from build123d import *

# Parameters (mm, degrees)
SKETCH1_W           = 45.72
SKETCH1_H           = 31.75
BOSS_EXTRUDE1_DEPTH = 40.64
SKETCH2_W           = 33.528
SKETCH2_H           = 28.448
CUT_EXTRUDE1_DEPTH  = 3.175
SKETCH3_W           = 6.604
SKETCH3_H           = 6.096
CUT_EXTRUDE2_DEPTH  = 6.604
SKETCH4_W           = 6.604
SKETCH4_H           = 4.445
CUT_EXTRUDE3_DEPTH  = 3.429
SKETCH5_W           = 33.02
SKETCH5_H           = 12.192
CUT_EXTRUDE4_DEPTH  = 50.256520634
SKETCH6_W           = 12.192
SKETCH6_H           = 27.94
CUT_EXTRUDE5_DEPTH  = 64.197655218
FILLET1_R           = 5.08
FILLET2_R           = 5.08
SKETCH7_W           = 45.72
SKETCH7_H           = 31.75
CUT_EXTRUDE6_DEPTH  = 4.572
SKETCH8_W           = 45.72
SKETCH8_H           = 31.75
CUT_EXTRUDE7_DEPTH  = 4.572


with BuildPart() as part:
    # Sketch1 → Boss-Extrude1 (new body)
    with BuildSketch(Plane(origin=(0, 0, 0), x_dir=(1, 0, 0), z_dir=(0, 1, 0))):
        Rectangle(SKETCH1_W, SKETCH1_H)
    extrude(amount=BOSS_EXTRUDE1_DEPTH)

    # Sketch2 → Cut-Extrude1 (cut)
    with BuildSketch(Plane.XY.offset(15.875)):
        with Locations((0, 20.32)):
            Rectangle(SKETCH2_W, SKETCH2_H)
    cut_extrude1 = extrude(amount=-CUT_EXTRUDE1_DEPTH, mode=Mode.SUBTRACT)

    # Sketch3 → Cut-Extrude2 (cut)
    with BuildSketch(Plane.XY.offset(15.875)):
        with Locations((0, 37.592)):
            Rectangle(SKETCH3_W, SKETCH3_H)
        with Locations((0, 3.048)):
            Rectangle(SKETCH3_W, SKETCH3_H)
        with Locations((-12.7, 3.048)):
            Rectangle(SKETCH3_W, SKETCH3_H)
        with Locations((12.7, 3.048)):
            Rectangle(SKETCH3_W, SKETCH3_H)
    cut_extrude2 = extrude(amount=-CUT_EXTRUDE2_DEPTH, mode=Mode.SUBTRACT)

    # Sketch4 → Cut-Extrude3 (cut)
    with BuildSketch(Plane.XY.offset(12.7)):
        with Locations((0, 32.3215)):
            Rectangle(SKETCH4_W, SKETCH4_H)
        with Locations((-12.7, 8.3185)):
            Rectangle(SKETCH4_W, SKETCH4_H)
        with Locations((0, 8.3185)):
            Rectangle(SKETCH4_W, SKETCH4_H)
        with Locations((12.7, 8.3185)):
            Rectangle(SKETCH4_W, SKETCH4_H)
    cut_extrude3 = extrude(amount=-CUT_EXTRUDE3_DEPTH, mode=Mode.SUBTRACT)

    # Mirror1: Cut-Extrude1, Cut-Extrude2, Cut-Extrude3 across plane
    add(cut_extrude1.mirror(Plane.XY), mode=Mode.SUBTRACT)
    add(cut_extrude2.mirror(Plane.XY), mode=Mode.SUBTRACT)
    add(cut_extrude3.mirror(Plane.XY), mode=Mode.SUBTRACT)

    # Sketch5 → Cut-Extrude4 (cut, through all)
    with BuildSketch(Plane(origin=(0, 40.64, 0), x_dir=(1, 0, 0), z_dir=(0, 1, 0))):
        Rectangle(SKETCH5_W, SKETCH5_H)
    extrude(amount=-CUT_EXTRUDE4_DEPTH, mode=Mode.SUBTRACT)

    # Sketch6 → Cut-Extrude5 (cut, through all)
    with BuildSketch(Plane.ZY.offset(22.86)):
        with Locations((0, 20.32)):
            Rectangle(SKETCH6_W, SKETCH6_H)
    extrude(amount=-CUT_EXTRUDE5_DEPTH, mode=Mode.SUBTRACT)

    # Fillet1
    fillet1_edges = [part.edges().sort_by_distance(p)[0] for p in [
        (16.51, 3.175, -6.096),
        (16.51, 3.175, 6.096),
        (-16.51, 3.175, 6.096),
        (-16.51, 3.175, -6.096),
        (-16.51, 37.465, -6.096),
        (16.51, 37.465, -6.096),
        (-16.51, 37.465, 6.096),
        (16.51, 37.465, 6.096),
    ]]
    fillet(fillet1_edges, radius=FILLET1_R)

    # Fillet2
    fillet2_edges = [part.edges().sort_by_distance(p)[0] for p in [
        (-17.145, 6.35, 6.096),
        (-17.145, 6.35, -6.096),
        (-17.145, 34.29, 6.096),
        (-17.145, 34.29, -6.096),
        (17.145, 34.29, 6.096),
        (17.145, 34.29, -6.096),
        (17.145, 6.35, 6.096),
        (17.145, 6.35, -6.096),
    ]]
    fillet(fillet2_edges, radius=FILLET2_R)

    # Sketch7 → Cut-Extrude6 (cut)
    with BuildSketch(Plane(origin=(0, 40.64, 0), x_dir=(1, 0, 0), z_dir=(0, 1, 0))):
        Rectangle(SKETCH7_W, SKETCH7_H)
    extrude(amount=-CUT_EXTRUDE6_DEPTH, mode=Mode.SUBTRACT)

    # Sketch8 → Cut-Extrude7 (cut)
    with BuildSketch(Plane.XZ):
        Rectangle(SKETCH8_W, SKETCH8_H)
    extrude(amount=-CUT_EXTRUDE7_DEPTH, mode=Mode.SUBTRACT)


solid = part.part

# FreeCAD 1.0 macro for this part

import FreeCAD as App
import Part
import Sketcher

V = App.Vector
Q = App.Units.Quantity


def edges_at(feature, points):
    """Names of the edges that pass closest to the given points."""
    edges = feature.Shape.Edges
    near = lambda p: min(range(len(edges)), key=lambda i: edges[i].distToShape(Part.Vertex(*p))[0])
    return sorted({f"Edge{near(p) + 1}" for p in points})

doc = App.newDocument("Part")
body = doc.addObject("PartDesign::Body", "Body")

# Sketch on XZ plane
sketch1 = body.newObject("Sketcher::SketchObject", "Sketch")
sketch1.AttachmentSupport = (doc.getObject("XZ_Plane"), [""])
sketch1.MapMode = "FlatFace"
sketch1.addGeometry([
    Part.LineSegment(V(-23, -16, 0), V(-23, 16, 0)),
    Part.LineSegment(V(-23, 16, 0), V(23, 16, 0)),
    Part.LineSegment(V(23, 16, 0), V(23, -16, 0)),
    Part.LineSegment(V(23, -16, 0), V(-23, -16, 0)),
], False)
sketch1.addConstraint([
    Sketcher.Constraint("Coincident", 0, 2, 1, 1),
    Sketcher.Constraint("Coincident", 1, 2, 2, 1),
    Sketcher.Constraint("Coincident", 2, 2, 3, 1),
    Sketcher.Constraint("Coincident", 3, 2, 0, 1),
    Sketcher.Constraint("Vertical", 0),
    Sketcher.Constraint("Horizontal", 1),
    Sketcher.Constraint("Vertical", 2),
    Sketcher.Constraint("Horizontal", 3),
    Sketcher.Constraint("Symmetric", 0, 2, 2, 2, -1, 1),
    Sketcher.Constraint("DistanceX", 1, 1, 1, 2, Q("1.8 in")),
    Sketcher.Constraint("DistanceY", 0, 1, 0, 2, Q("1.25 in")),
])
pad1 = body.newObject("PartDesign::Pad", "Pad")
pad1.Profile = sketch1
pad1.Length = Q("1.6 in")
pad1.Reversed = True

# Sketch on XY plane
sketch2 = body.newObject("Sketcher::SketchObject", "Sketch001")
sketch2.AttachmentSupport = (doc.getObject("XY_Plane"), [""])
sketch2.MapMode = "FlatFace"
sketch2.AttachmentOffset = App.Placement(V(0, 0, 0.625 * 25.4), App.Rotation())
sketch2.addGeometry([
    Part.LineSegment(V(-17, 35, 0), V(-17, 6, 0)),
    Part.LineSegment(V(-17, 6, 0), V(17, 6, 0)),
    Part.LineSegment(V(17, 6, 0), V(17, 35, 0)),
    Part.LineSegment(V(17, 35, 0), V(-17, 35, 0)),
], False)
sketch2.addConstraint([
    Sketcher.Constraint("Coincident", 0, 2, 1, 1),
    Sketcher.Constraint("Coincident", 1, 2, 2, 1),
    Sketcher.Constraint("Coincident", 2, 2, 3, 1),
    Sketcher.Constraint("Coincident", 3, 2, 0, 1),
    Sketcher.Constraint("Vertical", 0),
    Sketcher.Constraint("Horizontal", 1),
    Sketcher.Constraint("Vertical", 2),
    Sketcher.Constraint("Horizontal", 3),
    Sketcher.Constraint("DistanceX", 1, 1, 1, 2, Q("1.32 in")),
    Sketcher.Constraint("DistanceY", 0, 2, 0, 1, Q("1.12 in")),
    Sketcher.Constraint("DistanceX", 0, 2, -1, 1, Q("0.66 in")),
    Sketcher.Constraint("DistanceY", -1, 1, 0, 2, Q("0.24 in")),
])
pocket1 = body.newObject("PartDesign::Pocket", "Pocket")
pocket1.Profile = sketch2
pocket1.Length = Q("0.125 in")

# Sketch on XY plane
sketch3 = body.newObject("Sketcher::SketchObject", "Sketch002")
sketch3.AttachmentSupport = (doc.getObject("XY_Plane"), [""])
sketch3.MapMode = "FlatFace"
sketch3.AttachmentOffset = App.Placement(V(0, 0, 0.625 * 25.4), App.Rotation())
sketch3.addGeometry([
    Part.LineSegment(V(-3, 41, 0), V(-3, 35, 0)),  # 0
    Part.LineSegment(V(-3, 35, 0), V(3, 35, 0)),  # 1
    Part.LineSegment(V(3, 35, 0), V(3, 41, 0)),  # 2
    Part.LineSegment(V(3, 41, 0), V(-3, 41, 0)),  # 3
    Part.LineSegment(V(-3, 6, 0), V(-3, 0, 0)),  # 4
    Part.LineSegment(V(-3, 0, 0), V(3, 0, 0)),  # 5
    Part.LineSegment(V(3, 0, 0), V(3, 6, 0)),  # 6
    Part.LineSegment(V(3, 6, 0), V(-3, 6, 0)),  # 7
    Part.LineSegment(V(-16, 6, 0), V(-16, 0, 0)),  # 8
    Part.LineSegment(V(-16, 0, 0), V(-9, 0, 0)),  # 9
    Part.LineSegment(V(-9, 0, 0), V(-9, 6, 0)),  # 10
    Part.LineSegment(V(-9, 6, 0), V(-16, 6, 0)),  # 11
    Part.LineSegment(V(9, 6, 0), V(9, 0, 0)),  # 12
    Part.LineSegment(V(9, 0, 0), V(16, 0, 0)),  # 13
    Part.LineSegment(V(16, 0, 0), V(16, 6, 0)),  # 14
    Part.LineSegment(V(16, 6, 0), V(9, 6, 0)),  # 15
], False)
sketch3.addConstraint([
    Sketcher.Constraint("Coincident", 0, 2, 1, 1),
    Sketcher.Constraint("Coincident", 1, 2, 2, 1),
    Sketcher.Constraint("Coincident", 2, 2, 3, 1),
    Sketcher.Constraint("Coincident", 3, 2, 0, 1),
    Sketcher.Constraint("Coincident", 4, 2, 5, 1),
    Sketcher.Constraint("Coincident", 5, 2, 6, 1),
    Sketcher.Constraint("Coincident", 6, 2, 7, 1),
    Sketcher.Constraint("Coincident", 7, 2, 4, 1),
    Sketcher.Constraint("Coincident", 8, 2, 9, 1),
    Sketcher.Constraint("Coincident", 9, 2, 10, 1),
    Sketcher.Constraint("Coincident", 10, 2, 11, 1),
    Sketcher.Constraint("Coincident", 11, 2, 8, 1),
    Sketcher.Constraint("Coincident", 12, 2, 13, 1),
    Sketcher.Constraint("Coincident", 13, 2, 14, 1),
    Sketcher.Constraint("Coincident", 14, 2, 15, 1),
    Sketcher.Constraint("Coincident", 15, 2, 12, 1),
    Sketcher.Constraint("Vertical", 0),
    Sketcher.Constraint("Horizontal", 1),
    Sketcher.Constraint("Vertical", 2),
    Sketcher.Constraint("Horizontal", 3),
    Sketcher.Constraint("Vertical", 4),
    Sketcher.Constraint("Horizontal", 5),
    Sketcher.Constraint("Vertical", 6),
    Sketcher.Constraint("Horizontal", 7),
    Sketcher.Constraint("Vertical", 8),
    Sketcher.Constraint("Horizontal", 9),
    Sketcher.Constraint("Vertical", 10),
    Sketcher.Constraint("Horizontal", 11),
    Sketcher.Constraint("Vertical", 12),
    Sketcher.Constraint("Horizontal", 13),
    Sketcher.Constraint("Vertical", 14),
    Sketcher.Constraint("Horizontal", 15),
    Sketcher.Constraint("Symmetric", 4, 2, 5, 2, -1, 1),
    Sketcher.Constraint("Symmetric", 9, 2, 12, 2, -1, 1),
    Sketcher.Constraint("Symmetric", 8, 2, 13, 2, -2),
    Sketcher.Constraint("Horizontal", 7, 2, 10, 2),
    Sketcher.Constraint("Horizontal", 11, 2, 14, 2),
    Sketcher.Constraint("Vertical", 3, 2, 4, 2),
    Sketcher.Constraint("Vertical", 2, 2, 5, 2),
    Sketcher.Constraint("Equal", 7, 9),
    Sketcher.Constraint("Equal", 2, 4),
    Sketcher.Constraint("DistanceX", 1, 1, 1, 2, Q("0.26 in")),
    Sketcher.Constraint("DistanceY", 0, 2, 0, 1, Q("0.24 in")),
    Sketcher.Constraint("DistanceY", -1, 1, 2, 2, Q("1.6 in")),
    Sketcher.Constraint("DistanceX", 8, 2, 4, 2, Q("0.5 in")),
])
pocket2 = body.newObject("PartDesign::Pocket", "Pocket001")
pocket2.Profile = sketch3
pocket2.Length = Q("0.26 in")

# Sketch on XY plane
sketch4 = body.newObject("Sketcher::SketchObject", "Sketch003")
sketch4.AttachmentSupport = (doc.getObject("XY_Plane"), [""])
sketch4.MapMode = "FlatFace"
sketch4.AttachmentOffset = App.Placement(V(0, 0, 0.5 * 25.4), App.Rotation())
sketch4.addGeometry([
    Part.LineSegment(V(-3.3, 34.5, 0), V(-3.3, 30.1, 0)),  # 0
    Part.LineSegment(V(-3.3, 30.1, 0), V(3.3, 30.1, 0)),  # 1
    Part.LineSegment(V(3.3, 30.1, 0), V(3.3, 34.5, 0)),  # 2
    Part.LineSegment(V(3.3, 34.5, 0), V(-3.3, 34.5, 0)),  # 3
    Part.LineSegment(V(-16, 10.5, 0), V(-16, 6.1, 0)),  # 4
    Part.LineSegment(V(-16, 6.1, 0), V(-9.4, 6.1, 0)),  # 5
    Part.LineSegment(V(-9.4, 6.1, 0), V(-9.4, 10.5, 0)),  # 6
    Part.LineSegment(V(-9.4, 10.5, 0), V(-16, 10.5, 0)),  # 7
    Part.LineSegment(V(-3.3, 10.5, 0), V(-3.3, 6.1, 0)),  # 8
    Part.LineSegment(V(-3.3, 6.1, 0), V(3.3, 6.1, 0)),  # 9
    Part.LineSegment(V(3.3, 6.1, 0), V(3.3, 10.5, 0)),  # 10
    Part.LineSegment(V(3.3, 10.5, 0), V(-3.3, 10.5, 0)),  # 11
    Part.LineSegment(V(9.4, 10.5, 0), V(9.4, 6.1, 0)),  # 12
    Part.LineSegment(V(9.4, 6.1, 0), V(16, 6.1, 0)),  # 13
    Part.LineSegment(V(16, 6.1, 0), V(16, 10.5, 0)),  # 14
    Part.LineSegment(V(16, 10.5, 0), V(9.4, 10.5, 0)),  # 15
], False)
sketch4.addConstraint([
    Sketcher.Constraint("Coincident", 0, 2, 1, 1),
    Sketcher.Constraint("Coincident", 1, 2, 2, 1),
    Sketcher.Constraint("Coincident", 2, 2, 3, 1),
    Sketcher.Constraint("Coincident", 3, 2, 0, 1),
    Sketcher.Constraint("Coincident", 4, 2, 5, 1),
    Sketcher.Constraint("Coincident", 5, 2, 6, 1),
    Sketcher.Constraint("Coincident", 6, 2, 7, 1),
    Sketcher.Constraint("Coincident", 7, 2, 4, 1),
    Sketcher.Constraint("Coincident", 8, 2, 9, 1),
    Sketcher.Constraint("Coincident", 9, 2, 10, 1),
    Sketcher.Constraint("Coincident", 10, 2, 11, 1),
    Sketcher.Constraint("Coincident", 11, 2, 8, 1),
    Sketcher.Constraint("Coincident", 12, 2, 13, 1),
    Sketcher.Constraint("Coincident", 13, 2, 14, 1),
    Sketcher.Constraint("Coincident", 14, 2, 15, 1),
    Sketcher.Constraint("Coincident", 15, 2, 12, 1),
    Sketcher.Constraint("Vertical", 0),
    Sketcher.Constraint("Horizontal", 1),
    Sketcher.Constraint("Vertical", 2),
    Sketcher.Constraint("Horizontal", 3),
    Sketcher.Constraint("Vertical", 4),
    Sketcher.Constraint("Horizontal", 5),
    Sketcher.Constraint("Vertical", 6),
    Sketcher.Constraint("Horizontal", 7),
    Sketcher.Constraint("Vertical", 8),
    Sketcher.Constraint("Horizontal", 9),
    Sketcher.Constraint("Vertical", 10),
    Sketcher.Constraint("Horizontal", 11),
    Sketcher.Constraint("Vertical", 12),
    Sketcher.Constraint("Horizontal", 13),
    Sketcher.Constraint("Vertical", 14),
    Sketcher.Constraint("Horizontal", 15),
    Sketcher.Constraint("Symmetric", 5, 2, 12, 2, -2),
    Sketcher.Constraint("Symmetric", 7, 2, 14, 2, -2),
    Sketcher.Constraint("Horizontal", 5, 2, 8, 2),
    Sketcher.Constraint("Horizontal", 7, 2, 10, 2),
    Sketcher.Constraint("Vertical", 3, 2, 8, 2),
    Sketcher.Constraint("Vertical", 2, 2, 9, 2),
    Sketcher.Constraint("Equal", 3, 5),
    Sketcher.Constraint("Equal", 2, 4),
    Sketcher.Constraint("DistanceX", 1, 1, 1, 2, Q("0.26 in")),
    Sketcher.Constraint("DistanceX", 4, 2, 0, 2, Q("0.5 in")),
    Sketcher.Constraint("DistanceX", 8, 2, 12, 2, Q("0.5 in")),
    Sketcher.Constraint("DistanceY", 0, 2, 0, 1, Q("0.175 in")),
    Sketcher.Constraint("DistanceY", -1, 1, 2, 2, Q("1.36 in")),
    Sketcher.Constraint("DistanceY", -1, 1, 4, 2, Q("0.24 in")),
])
pocket3 = body.newObject("PartDesign::Pocket", "Pocket002")
pocket3.Profile = sketch4
pocket3.Length = Q("0.135 in")
doc.recompute()

mirrored = body.newObject("PartDesign::Mirrored", "Mirrored")
mirrored.Originals = [pocket1, pocket2, pocket3]
mirrored.MirrorPlane = (doc.getObject("XY_Plane"), [""])
body.Tip = mirrored

# Sketch on XZ plane
sketch5 = body.newObject("Sketcher::SketchObject", "Sketch004")
sketch5.AttachmentSupport = (doc.getObject("XZ_Plane"), [""])
sketch5.MapMode = "FlatFace"
sketch5.AttachmentOffset = App.Placement(V(0, 0, -1.6 * 25.4), App.Rotation())
sketch5.addGeometry([
    Part.LineSegment(V(-17, -6, 0), V(-17, 6, 0)),
    Part.LineSegment(V(-17, 6, 0), V(17, 6, 0)),
    Part.LineSegment(V(17, 6, 0), V(17, -6, 0)),
    Part.LineSegment(V(17, -6, 0), V(-17, -6, 0)),
], False)
sketch5.addConstraint([
    Sketcher.Constraint("Coincident", 0, 2, 1, 1),
    Sketcher.Constraint("Coincident", 1, 2, 2, 1),
    Sketcher.Constraint("Coincident", 2, 2, 3, 1),
    Sketcher.Constraint("Coincident", 3, 2, 0, 1),
    Sketcher.Constraint("Vertical", 0),
    Sketcher.Constraint("Horizontal", 1),
    Sketcher.Constraint("Vertical", 2),
    Sketcher.Constraint("Horizontal", 3),
    Sketcher.Constraint("Symmetric", 0, 2, 2, 2, -1, 1),
    Sketcher.Constraint("DistanceX", 1, 1, 1, 2, Q("1.3 in")),
    Sketcher.Constraint("DistanceY", 0, 1, 0, 2, Q("0.48 in")),
])
pocket4 = body.newObject("PartDesign::Pocket", "Pocket003")
pocket4.Profile = sketch5
pocket4.Type = "ThroughAll"
pocket4.Reversed = True

# Sketch on YZ plane
sketch6 = body.newObject("Sketcher::SketchObject", "Sketch005")
sketch6.AttachmentSupport = (doc.getObject("YZ_Plane"), [""])
sketch6.MapMode = "FlatFace"
sketch6.AttachmentOffset = App.Placement(V(0, 0, -0.9 * 25.4), App.Rotation())
sketch6.addGeometry([
    Part.LineSegment(V(34, -6, 0), V(6, -6, 0)),
    Part.LineSegment(V(6, -6, 0), V(6, 6, 0)),
    Part.LineSegment(V(6, 6, 0), V(34, 6, 0)),
    Part.LineSegment(V(34, 6, 0), V(34, -6, 0)),
], False)
sketch6.addConstraint([
    Sketcher.Constraint("Coincident", 0, 2, 1, 1),
    Sketcher.Constraint("Coincident", 1, 2, 2, 1),
    Sketcher.Constraint("Coincident", 2, 2, 3, 1),
    Sketcher.Constraint("Coincident", 3, 2, 0, 1),
    Sketcher.Constraint("Horizontal", 0),
    Sketcher.Constraint("Vertical", 1),
    Sketcher.Constraint("Horizontal", 2),
    Sketcher.Constraint("Vertical", 3),
    Sketcher.Constraint("DistanceX", 0, 2, 0, 1, Q("1.1 in")),
    Sketcher.Constraint("DistanceY", 1, 1, 1, 2, Q("0.48 in")),
    Sketcher.Constraint("DistanceX", -1, 1, 0, 2, Q("0.25 in")),
    Sketcher.Constraint("DistanceY", 0, 2, -1, 1, Q("0.24 in")),
])
pocket5 = body.newObject("PartDesign::Pocket", "Pocket004")
pocket5.Profile = sketch6
pocket5.Type = "ThroughAll"
pocket5.Reversed = True
doc.recompute()

fillet = body.newObject("PartDesign::Fillet", "Fillet")
fillet.Base = (pocket5, edges_at(pocket5, [
    (16.51, 3.175, -6.096),
    (16.51, 3.175, 6.096),
    (-16.51, 3.175, 6.096),
    (-16.51, 3.175, -6.096),
    (-16.51, 37.465, -6.096),
    (16.51, 37.465, -6.096),
    (-16.51, 37.465, 6.096),
    (16.51, 37.465, 6.096),
]))
fillet.Radius = Q("0.2 in")
doc.recompute()

fillet2 = body.newObject("PartDesign::Fillet", "Fillet001")
fillet2.Base = (fillet, edges_at(fillet, [
    (-17.145, 6.35, 6.096),
    (-17.145, 6.35, -6.096),
    (-17.145, 34.29, 6.096),
    (-17.145, 34.29, -6.096),
    (17.145, 34.29, 6.096),
    (17.145, 34.29, -6.096),
    (17.145, 6.35, 6.096),
    (17.145, 6.35, -6.096),
]))
fillet2.Radius = Q("0.2 in")

# Sketch on XZ plane
sketch7 = body.newObject("Sketcher::SketchObject", "Sketch006")
sketch7.AttachmentSupport = (doc.getObject("XZ_Plane"), [""])
sketch7.MapMode = "FlatFace"
sketch7.AttachmentOffset = App.Placement(V(0, 0, -1.6 * 25.4), App.Rotation())
sketch7.addGeometry([
    Part.LineSegment(V(-23, -16, 0), V(-23, 16, 0)),
    Part.LineSegment(V(-23, 16, 0), V(23, 16, 0)),
    Part.LineSegment(V(23, 16, 0), V(23, -16, 0)),
    Part.LineSegment(V(23, -16, 0), V(-23, -16, 0)),
], False)
sketch7.addConstraint([
    Sketcher.Constraint("Coincident", 0, 2, 1, 1),
    Sketcher.Constraint("Coincident", 1, 2, 2, 1),
    Sketcher.Constraint("Coincident", 2, 2, 3, 1),
    Sketcher.Constraint("Coincident", 3, 2, 0, 1),
    Sketcher.Constraint("Vertical", 0),
    Sketcher.Constraint("Horizontal", 1),
    Sketcher.Constraint("Vertical", 2),
    Sketcher.Constraint("Horizontal", 3),
    Sketcher.Constraint("Symmetric", 0, 2, 2, 2, -1, 1),
    Sketcher.Constraint("DistanceX", 1, 1, 1, 2, Q("1.8 in")),
    Sketcher.Constraint("DistanceY", 0, 1, 0, 2, Q("1.25 in")),
])
pocket6 = body.newObject("PartDesign::Pocket", "Pocket005")
pocket6.Profile = sketch7
pocket6.Length = Q("0.18 in")
pocket6.Reversed = True

# Sketch on XZ plane
sketch8 = body.newObject("Sketcher::SketchObject", "Sketch007")
sketch8.AttachmentSupport = (doc.getObject("XZ_Plane"), [""])
sketch8.MapMode = "FlatFace"
sketch8.addGeometry([
    Part.LineSegment(V(-23, 16, 0), V(-23, -16, 0)),
    Part.LineSegment(V(-23, -16, 0), V(23, -16, 0)),
    Part.LineSegment(V(23, -16, 0), V(23, 16, 0)),
    Part.LineSegment(V(23, 16, 0), V(-23, 16, 0)),
], False)
sketch8.addConstraint([
    Sketcher.Constraint("Coincident", 0, 2, 1, 1),
    Sketcher.Constraint("Coincident", 1, 2, 2, 1),
    Sketcher.Constraint("Coincident", 2, 2, 3, 1),
    Sketcher.Constraint("Coincident", 3, 2, 0, 1),
    Sketcher.Constraint("Vertical", 0),
    Sketcher.Constraint("Horizontal", 1),
    Sketcher.Constraint("Vertical", 2),
    Sketcher.Constraint("Horizontal", 3),
    Sketcher.Constraint("Symmetric", 0, 2, 2, 2, -1, 1),
    Sketcher.Constraint("DistanceX", 1, 1, 1, 2, Q("1.8 in")),
    Sketcher.Constraint("DistanceY", 0, 2, 0, 1, Q("1.25 in")),
])
pocket7 = body.newObject("PartDesign::Pocket", "Pocket006")
pocket7.Profile = sketch8
pocket7.Length = Q("0.18 in")

doc.recompute()
